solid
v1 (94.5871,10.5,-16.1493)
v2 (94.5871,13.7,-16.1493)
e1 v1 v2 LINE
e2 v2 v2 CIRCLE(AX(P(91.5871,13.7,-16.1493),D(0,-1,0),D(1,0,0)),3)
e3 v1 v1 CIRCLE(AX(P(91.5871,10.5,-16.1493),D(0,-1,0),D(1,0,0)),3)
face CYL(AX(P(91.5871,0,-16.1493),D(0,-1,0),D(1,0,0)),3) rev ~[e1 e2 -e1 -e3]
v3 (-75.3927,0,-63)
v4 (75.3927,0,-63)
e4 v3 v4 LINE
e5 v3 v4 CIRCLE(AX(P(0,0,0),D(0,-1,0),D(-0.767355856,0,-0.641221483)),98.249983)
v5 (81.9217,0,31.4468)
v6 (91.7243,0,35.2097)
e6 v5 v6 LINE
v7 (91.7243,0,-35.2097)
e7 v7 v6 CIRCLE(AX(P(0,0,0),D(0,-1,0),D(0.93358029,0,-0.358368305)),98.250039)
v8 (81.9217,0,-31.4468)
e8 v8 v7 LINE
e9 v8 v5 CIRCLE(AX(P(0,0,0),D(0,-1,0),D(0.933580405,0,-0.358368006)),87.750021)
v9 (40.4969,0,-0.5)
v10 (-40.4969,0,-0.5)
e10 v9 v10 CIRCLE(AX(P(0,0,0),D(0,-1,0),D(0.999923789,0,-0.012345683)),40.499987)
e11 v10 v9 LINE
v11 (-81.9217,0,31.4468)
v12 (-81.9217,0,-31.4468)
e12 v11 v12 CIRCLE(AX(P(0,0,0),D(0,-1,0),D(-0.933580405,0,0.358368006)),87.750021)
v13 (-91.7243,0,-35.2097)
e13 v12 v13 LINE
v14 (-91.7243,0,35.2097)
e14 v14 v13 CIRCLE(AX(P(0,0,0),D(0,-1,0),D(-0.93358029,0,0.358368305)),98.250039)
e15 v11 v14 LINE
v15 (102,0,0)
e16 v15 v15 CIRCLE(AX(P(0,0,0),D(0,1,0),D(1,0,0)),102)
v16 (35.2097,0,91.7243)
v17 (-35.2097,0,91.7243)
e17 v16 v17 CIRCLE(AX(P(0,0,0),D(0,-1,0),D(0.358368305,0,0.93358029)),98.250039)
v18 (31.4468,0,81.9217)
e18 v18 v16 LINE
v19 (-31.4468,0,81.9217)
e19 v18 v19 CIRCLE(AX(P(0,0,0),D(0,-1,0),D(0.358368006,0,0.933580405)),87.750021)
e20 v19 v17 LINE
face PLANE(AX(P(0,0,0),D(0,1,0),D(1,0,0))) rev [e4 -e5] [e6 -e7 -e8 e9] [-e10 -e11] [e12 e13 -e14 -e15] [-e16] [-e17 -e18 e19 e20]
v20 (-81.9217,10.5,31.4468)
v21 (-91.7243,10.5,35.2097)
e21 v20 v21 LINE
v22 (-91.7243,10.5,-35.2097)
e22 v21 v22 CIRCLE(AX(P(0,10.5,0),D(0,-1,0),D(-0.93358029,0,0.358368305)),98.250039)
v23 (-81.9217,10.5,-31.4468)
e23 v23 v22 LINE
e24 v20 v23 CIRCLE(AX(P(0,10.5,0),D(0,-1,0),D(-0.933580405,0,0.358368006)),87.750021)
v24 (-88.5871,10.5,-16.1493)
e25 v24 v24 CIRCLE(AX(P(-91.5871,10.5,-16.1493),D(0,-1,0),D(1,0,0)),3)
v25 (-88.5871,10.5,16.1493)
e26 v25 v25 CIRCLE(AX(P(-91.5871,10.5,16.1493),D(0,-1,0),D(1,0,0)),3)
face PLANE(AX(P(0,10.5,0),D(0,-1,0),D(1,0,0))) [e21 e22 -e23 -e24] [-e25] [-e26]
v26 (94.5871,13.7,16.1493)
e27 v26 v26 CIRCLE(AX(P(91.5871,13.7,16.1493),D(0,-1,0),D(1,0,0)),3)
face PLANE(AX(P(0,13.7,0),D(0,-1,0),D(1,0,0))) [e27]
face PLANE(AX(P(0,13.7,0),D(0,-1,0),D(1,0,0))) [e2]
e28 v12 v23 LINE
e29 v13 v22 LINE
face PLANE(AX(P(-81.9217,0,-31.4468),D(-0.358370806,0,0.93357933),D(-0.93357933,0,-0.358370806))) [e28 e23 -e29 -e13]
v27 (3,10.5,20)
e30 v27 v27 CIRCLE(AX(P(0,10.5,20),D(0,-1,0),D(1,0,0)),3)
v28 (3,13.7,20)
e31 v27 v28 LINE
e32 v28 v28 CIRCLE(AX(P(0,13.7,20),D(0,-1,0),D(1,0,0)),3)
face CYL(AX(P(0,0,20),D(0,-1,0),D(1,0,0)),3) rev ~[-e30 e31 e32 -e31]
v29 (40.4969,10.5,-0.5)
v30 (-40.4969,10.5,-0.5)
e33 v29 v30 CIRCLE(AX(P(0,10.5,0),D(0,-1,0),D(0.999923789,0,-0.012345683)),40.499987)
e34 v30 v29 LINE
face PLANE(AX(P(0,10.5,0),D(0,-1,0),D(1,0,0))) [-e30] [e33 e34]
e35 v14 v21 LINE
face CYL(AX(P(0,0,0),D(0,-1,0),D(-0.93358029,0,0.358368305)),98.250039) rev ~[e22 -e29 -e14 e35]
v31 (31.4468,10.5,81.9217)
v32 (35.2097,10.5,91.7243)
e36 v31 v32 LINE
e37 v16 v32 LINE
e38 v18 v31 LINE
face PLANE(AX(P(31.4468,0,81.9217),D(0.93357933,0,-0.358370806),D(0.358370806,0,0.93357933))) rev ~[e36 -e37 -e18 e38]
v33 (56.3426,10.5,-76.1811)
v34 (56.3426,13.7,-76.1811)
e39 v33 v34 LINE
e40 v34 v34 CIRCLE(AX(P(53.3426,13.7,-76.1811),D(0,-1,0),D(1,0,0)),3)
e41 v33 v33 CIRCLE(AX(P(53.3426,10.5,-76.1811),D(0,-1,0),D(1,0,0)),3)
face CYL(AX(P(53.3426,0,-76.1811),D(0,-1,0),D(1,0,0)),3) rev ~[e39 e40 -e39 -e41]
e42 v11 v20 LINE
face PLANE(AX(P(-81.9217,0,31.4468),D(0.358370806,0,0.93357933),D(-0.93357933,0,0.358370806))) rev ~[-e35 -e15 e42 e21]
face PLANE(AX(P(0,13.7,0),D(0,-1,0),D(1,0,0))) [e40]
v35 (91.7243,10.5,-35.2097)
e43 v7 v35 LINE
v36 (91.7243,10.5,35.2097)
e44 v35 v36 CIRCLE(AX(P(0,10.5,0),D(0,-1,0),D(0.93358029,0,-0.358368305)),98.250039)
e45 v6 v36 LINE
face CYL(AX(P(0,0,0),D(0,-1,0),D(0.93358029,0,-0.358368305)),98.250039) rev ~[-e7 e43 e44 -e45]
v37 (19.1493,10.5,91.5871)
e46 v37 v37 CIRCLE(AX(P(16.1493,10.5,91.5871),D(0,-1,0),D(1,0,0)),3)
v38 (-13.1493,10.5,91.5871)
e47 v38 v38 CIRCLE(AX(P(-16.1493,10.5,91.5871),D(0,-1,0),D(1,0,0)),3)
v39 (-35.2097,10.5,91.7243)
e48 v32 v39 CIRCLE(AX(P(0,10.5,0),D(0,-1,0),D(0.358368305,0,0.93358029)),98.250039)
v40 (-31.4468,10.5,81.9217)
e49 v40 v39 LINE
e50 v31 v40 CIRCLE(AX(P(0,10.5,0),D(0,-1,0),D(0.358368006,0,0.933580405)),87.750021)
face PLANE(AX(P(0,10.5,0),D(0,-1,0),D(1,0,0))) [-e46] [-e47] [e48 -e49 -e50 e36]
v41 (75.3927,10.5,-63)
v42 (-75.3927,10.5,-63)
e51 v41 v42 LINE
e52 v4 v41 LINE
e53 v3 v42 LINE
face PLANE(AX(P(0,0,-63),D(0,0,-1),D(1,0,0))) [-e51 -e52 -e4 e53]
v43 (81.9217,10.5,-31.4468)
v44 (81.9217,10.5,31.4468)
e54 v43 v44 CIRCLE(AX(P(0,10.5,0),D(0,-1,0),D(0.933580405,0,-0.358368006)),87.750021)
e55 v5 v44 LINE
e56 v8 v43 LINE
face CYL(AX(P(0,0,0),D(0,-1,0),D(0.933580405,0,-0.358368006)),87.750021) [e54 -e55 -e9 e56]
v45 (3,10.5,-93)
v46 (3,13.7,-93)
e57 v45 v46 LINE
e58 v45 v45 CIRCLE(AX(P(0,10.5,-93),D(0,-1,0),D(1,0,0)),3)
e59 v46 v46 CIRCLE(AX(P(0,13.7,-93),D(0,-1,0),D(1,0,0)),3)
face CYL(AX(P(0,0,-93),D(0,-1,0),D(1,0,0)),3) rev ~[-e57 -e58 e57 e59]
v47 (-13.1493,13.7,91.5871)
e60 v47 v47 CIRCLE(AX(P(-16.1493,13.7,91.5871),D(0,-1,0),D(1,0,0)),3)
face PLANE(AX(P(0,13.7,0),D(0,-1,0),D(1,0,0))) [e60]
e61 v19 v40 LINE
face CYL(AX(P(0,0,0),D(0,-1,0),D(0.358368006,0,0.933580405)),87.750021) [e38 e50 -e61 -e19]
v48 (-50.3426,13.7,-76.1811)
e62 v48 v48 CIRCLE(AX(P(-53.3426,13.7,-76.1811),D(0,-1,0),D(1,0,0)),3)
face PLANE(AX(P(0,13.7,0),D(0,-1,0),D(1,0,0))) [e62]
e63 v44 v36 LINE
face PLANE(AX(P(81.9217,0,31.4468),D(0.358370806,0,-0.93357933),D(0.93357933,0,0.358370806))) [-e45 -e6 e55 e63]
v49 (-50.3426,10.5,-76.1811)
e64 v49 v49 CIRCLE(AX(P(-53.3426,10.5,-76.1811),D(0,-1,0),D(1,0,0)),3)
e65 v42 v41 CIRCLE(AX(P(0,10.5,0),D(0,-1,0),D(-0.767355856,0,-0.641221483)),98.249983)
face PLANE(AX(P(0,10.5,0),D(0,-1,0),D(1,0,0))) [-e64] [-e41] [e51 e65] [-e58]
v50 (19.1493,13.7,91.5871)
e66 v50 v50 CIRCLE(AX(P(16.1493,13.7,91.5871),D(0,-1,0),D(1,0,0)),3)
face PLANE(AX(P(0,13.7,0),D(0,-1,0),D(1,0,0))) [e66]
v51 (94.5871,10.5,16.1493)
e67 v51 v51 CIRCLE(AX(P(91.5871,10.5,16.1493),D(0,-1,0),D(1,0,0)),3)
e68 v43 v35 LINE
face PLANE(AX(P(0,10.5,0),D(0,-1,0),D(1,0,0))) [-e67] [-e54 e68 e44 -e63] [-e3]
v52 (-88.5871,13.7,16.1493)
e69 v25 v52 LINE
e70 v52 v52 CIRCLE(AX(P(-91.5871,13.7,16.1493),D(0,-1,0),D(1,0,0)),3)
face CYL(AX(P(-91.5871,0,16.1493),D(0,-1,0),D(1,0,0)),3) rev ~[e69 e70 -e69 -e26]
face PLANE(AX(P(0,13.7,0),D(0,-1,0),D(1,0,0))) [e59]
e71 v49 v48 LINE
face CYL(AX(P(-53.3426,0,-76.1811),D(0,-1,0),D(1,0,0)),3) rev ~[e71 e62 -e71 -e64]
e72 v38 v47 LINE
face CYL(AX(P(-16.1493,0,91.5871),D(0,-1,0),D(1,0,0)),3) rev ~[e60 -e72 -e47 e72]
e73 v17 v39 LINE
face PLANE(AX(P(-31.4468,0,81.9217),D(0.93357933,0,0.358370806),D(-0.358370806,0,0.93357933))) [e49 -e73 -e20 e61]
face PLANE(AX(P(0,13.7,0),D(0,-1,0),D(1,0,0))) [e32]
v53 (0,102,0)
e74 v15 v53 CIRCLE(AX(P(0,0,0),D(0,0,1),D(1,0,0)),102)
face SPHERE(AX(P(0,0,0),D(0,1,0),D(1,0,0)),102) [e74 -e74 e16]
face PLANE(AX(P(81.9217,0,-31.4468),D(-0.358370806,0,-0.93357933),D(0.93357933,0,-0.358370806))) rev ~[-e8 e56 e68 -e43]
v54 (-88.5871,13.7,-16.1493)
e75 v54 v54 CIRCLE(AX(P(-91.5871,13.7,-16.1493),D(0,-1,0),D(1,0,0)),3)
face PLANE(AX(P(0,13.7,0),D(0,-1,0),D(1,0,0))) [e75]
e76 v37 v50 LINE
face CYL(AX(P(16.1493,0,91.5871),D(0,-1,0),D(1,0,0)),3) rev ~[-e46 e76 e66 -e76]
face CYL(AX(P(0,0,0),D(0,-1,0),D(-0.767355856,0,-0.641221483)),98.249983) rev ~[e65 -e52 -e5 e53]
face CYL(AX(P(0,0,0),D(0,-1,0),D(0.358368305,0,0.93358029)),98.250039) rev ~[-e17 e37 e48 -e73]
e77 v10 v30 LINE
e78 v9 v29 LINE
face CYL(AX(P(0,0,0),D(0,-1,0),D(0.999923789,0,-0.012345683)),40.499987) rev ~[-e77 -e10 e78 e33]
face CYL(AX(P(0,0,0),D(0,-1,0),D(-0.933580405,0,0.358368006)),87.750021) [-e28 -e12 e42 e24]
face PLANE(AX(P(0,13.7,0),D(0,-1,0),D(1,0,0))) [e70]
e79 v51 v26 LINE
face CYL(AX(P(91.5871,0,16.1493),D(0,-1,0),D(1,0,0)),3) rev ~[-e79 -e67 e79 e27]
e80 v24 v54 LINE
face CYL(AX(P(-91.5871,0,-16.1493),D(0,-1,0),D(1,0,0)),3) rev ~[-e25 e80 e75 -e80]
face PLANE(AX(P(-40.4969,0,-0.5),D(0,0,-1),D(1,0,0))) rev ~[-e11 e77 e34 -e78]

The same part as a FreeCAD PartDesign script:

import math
import FreeCAD as App
import Part
import Sketcher

V = App.Vector
Q = App.Units.Quantity

doc = App.newDocument("Part")
body = doc.addObject("PartDesign::Body", "Body")

sketch1 = body.newObject("Sketcher::SketchObject", "Sketch")
sketch1.AttachmentSupport = (doc.getObject("XY_Plane"), [""])
sketch1.MapMode = "FlatFace"
sketch1.addGeometry(Part.LineSegment(V(0, 102, 0), V(0, 0, 0)), False)
sketch1.addGeometry(Part.LineSegment(V(0, 0, 0), V(102, 0, 0)), False)
sketch1.addGeometry(Part.ArcOfCircle(Part.Circle(V(0, 0, 0), V(0, 0, 1), 102), math.radians(0), math.radians(90)), False)
sketch1.addConstraint(Sketcher.Constraint("Coincident", 0, 2, 1, 1))
sketch1.addConstraint(Sketcher.Constraint("Coincident", 1, 2, 2, 1))
sketch1.addConstraint(Sketcher.Constraint("Coincident", 2, 2, 0, 1))
sketch1.addConstraint(Sketcher.Constraint("Vertical", 0))
sketch1.addConstraint(Sketcher.Constraint("Horizontal", 1))
sketch1.addConstraint(Sketcher.Constraint("Coincident", 2, 3, -1, 1))
sketch1.addConstraint(Sketcher.Constraint("Coincident", 0, 2, -1, 1))
sketch1.addConstraint(Sketcher.Constraint("Radius", 2, 102.0))
revolution = body.newObject("PartDesign::Revolution", "Revolution")
revolution.Profile = sketch1
revolution.ReferenceAxis = (sketch1, ["V_Axis"])
revolution.Angle = 360

sketch2 = body.newObject("Sketcher::SketchObject", "Sketch001")
sketch2.AttachmentSupport = (doc.getObject("XZ_Plane"), [""])
sketch2.MapMode = "FlatFace"
sketch2.addGeometry(Part.ArcOfCircle(Part.Circle(V(0, 0, 0), V(0, 0, 1), 40), math.radians(-1), math.radians(181)), False)
sketch2.addGeometry(Part.LineSegment(V(-40, 0, 0), V(40, 0, 0)), False)
sketch2.addConstraint(Sketcher.Constraint("Coincident", 0, 1, 1, 2))
sketch2.addConstraint(Sketcher.Constraint("Coincident", 1, 1, 0, 2))
sketch2.addConstraint(Sketcher.Constraint("Horizontal", 1))
sketch2.addConstraint(Sketcher.Constraint("Coincident", 0, 3, -1, 1))
sketch2.addConstraint(Sketcher.Constraint("Radius", 0, 40.5))
sketch2.addConstraint(Sketcher.Constraint("DistanceY", 0, 1, -1, 1, 0.5))
pocket1 = body.newObject("PartDesign::Pocket", "Pocket")
pocket1.Profile = sketch2
pocket1.Length = 10.5

sketch3 = body.newObject("Sketcher::SketchObject", "Sketch002")
sketch3.AttachmentSupport = (doc.getObject("XZ_Plane"), [""])
sketch3.MapMode = "FlatFace"
sketch3.addGeometry(Part.LineSegment(V(75, -63, 0), V(-75, -63, 0)), False)
sketch3.addGeometry(Part.ArcOfCircle(Part.Circle(V(0, 0, 0), V(0, 0, 1), 98), math.radians(-140), math.radians(-40)), False)
sketch3.addGeometry(Part.ArcOfCircle(Part.Circle(V(0, 0, 0), V(0, 0, 1), 88), math.radians(69), math.radians(111)), False)
sketch3.addGeometry(Part.LineSegment(V(31, 82, 0), V(35, 92, 0)), False)
sketch3.addGeometry(Part.ArcOfCircle(Part.Circle(V(0, 0, 0), V(0, 0, 1), 98), math.radians(69), math.radians(111)), False)
sketch3.addGeometry(Part.LineSegment(V(-35, 92, 0), V(-31, 82, 0)), False)
sketch3.addGeometry(Part.LineSegment(V(92, 35, 0), V(82, 31, 0)), False)
sketch3.addGeometry(Part.ArcOfCircle(Part.Circle(V(0, 0, 0), V(0, 0, 1), 88), math.radians(-21), math.radians(21)), False)
sketch3.addGeometry(Part.LineSegment(V(82, -31, 0), V(92, -35, 0)), False)
sketch3.addGeometry(Part.ArcOfCircle(Part.Circle(V(0, 0, 0), V(0, 0, 1), 98), math.radians(-21), math.radians(21)), False)
sketch3.addGeometry(Part.ArcOfCircle(Part.Circle(V(0, 0, 0), V(0, 0, 1), 88), math.radians(159), math.radians(201)), False)
sketch3.addGeometry(Part.LineSegment(V(-82, 31, 0), V(-92, 35, 0)), False)
sketch3.addGeometry(Part.ArcOfCircle(Part.Circle(V(0, 0, 0), V(0, 0, 1), 98), math.radians(159), math.radians(201)), False)
sketch3.addGeometry(Part.LineSegment(V(-92, -35, 0), V(-82, -31, 0)), False)
sketch3.addConstraint(Sketcher.Constraint("Coincident", 0, 1, 1, 2))
sketch3.addConstraint(Sketcher.Constraint("Coincident", 1, 1, 0, 2))
sketch3.addConstraint(Sketcher.Constraint("Coincident", 2, 1, 3, 1))
sketch3.addConstraint(Sketcher.Constraint("Coincident", 3, 2, 4, 1))
sketch3.addConstraint(Sketcher.Constraint("Coincident", 4, 2, 5, 1))
sketch3.addConstraint(Sketcher.Constraint("Coincident", 5, 2, 2, 2))
sketch3.addConstraint(Sketcher.Constraint("Coincident", 6, 2, 7, 2))
sketch3.addConstraint(Sketcher.Constraint("Coincident", 7, 1, 8, 1))
sketch3.addConstraint(Sketcher.Constraint("Coincident", 8, 2, 9, 1))
sketch3.addConstraint(Sketcher.Constraint("Coincident", 9, 2, 6, 1))
sketch3.addConstraint(Sketcher.Constraint("Coincident", 10, 1, 11, 1))
sketch3.addConstraint(Sketcher.Constraint("Coincident", 11, 2, 12, 1))
sketch3.addConstraint(Sketcher.Constraint("Coincident", 12, 2, 13, 1))
sketch3.addConstraint(Sketcher.Constraint("Coincident", 13, 2, 10, 2))
sketch3.addConstraint(Sketcher.Constraint("Horizontal", 0))
sketch3.addConstraint(Sketcher.Constraint("Coincident", 1, 3, -1, 1))
sketch3.addConstraint(Sketcher.Constraint("Coincident", 2, 3, -1, 1))
sketch3.addConstraint(Sketcher.Constraint("Coincident", 4, 3, -1, 1))
sketch3.addConstraint(Sketcher.Constraint("Coincident", 7, 3, -1, 1))
sketch3.addConstraint(Sketcher.Constraint("Coincident", 9, 3, -1, 1))
sketch3.addConstraint(Sketcher.Constraint("Coincident", 10, 3, -1, 1))
sketch3.addConstraint(Sketcher.Constraint("Coincident", 12, 3, -1, 1))
sketch3.addConstraint(Sketcher.Constraint("Equal", 1, 4))
sketch3.addConstraint(Sketcher.Constraint("Equal", 2, 7))
sketch3.addConstraint(Sketcher.Constraint("Equal", 4, 9))
sketch3.addConstraint(Sketcher.Constraint("Equal", 7, 10))
sketch3.addConstraint(Sketcher.Constraint("Equal", 9, 12))
sketch3.addConstraint(Sketcher.Constraint("Perpendicular", 5, 6))
sketch3.addConstraint(Sketcher.Constraint("Perpendicular", 3, 8))
sketch3.addConstraint(Sketcher.Constraint("Parallel", 8, 11))
sketch3.addConstraint(Sketcher.Constraint("Parallel", 6, 13))
sketch3.addConstraint(Sketcher.Constraint("Horizontal", 3, 2, 4, 2))
sketch3.addConstraint(Sketcher.Constraint("Horizontal", 2, 1, 5, 2))
sketch3.addConstraint(Sketcher.Constraint("Horizontal", 6, 2, 10, 1))
sketch3.addConstraint(Sketcher.Constraint("Horizontal", 8, 2, 12, 2))
sketch3.addConstraint(Sketcher.Constraint("Vertical", 6, 2, 7, 1))
sketch3.addConstraint(Sketcher.Constraint("Angle", 3, Q("68.9998 deg")))
sketch3.addConstraint(Sketcher.Constraint("Radius", 1, 98.25))
sketch3.addConstraint(Sketcher.Constraint("Radius", 2, 87.75))
sketch3.addConstraint(Sketcher.Constraint("DistanceY", 0, 1, -1, 1, 63.0))
sketch3.addConstraint(Sketcher.Constraint("DistanceX", 2, 1, 6, 2, 50.475))
sketch3.addConstraint(Sketcher.Constraint("DistanceY", 6, 2, 2, 1, 50.475))
pocket2 = body.newObject("PartDesign::Pocket", "Pocket001")
pocket2.Profile = sketch3
pocket2.Length = 10.5

sketch4 = body.newObject("Sketcher::SketchObject", "Sketch003")
sketch4.AttachmentSupport = (doc.getObject("XZ_Plane"), [""])
sketch4.MapMode = "FlatFace"
sketch4.addGeometry(Part.Circle(V(-16.1, 91.6, 0), V(0, 0, 1), 3), False)
sketch4.addGeometry(Part.Circle(V(16.1, 91.6, 0), V(0, 0, 1), 3), False)
sketch4.addGeometry(Part.Circle(V(-91.6, 16.1, 0), V(0, 0, 1), 3), False)
sketch4.addGeometry(Part.Circle(V(-91.6, -16.1, 0), V(0, 0, 1), 3), False)
sketch4.addGeometry(Part.Circle(V(-53.3, -76.2, 0), V(0, 0, 1), 3), False)
sketch4.addGeometry(Part.Circle(V(91.6, 16.1, 0), V(0, 0, 1), 3), False)
sketch4.addGeometry(Part.Circle(V(91.6, -16.1, 0), V(0, 0, 1), 3), False)
sketch4.addGeometry(Part.Circle(V(53.3, -76.2, 0), V(0, 0, 1), 3), False)
sketch4.addGeometry(Part.Circle(V(0, 20, 0), V(0, 0, 1), 3), False)
sketch4.addGeometry(Part.Circle(V(0, -93, 0), V(0, 0, 1), 3), False)
sketch4.addConstraint(Sketcher.Constraint("Equal", 0, 1))
sketch4.addConstraint(Sketcher.Constraint("Equal", 1, 2))
sketch4.addConstraint(Sketcher.Constraint("Equal", 2, 3))
sketch4.addConstraint(Sketcher.Constraint("Equal", 3, 4))
sketch4.addConstraint(Sketcher.Constraint("Equal", 4, 5))
sketch4.addConstraint(Sketcher.Constraint("Equal", 5, 6))
sketch4.addConstraint(Sketcher.Constraint("Equal", 6, 7))
sketch4.addConstraint(Sketcher.Constraint("Equal", 7, 8))
sketch4.addConstraint(Sketcher.Constraint("Equal", 8, 9))
sketch4.addConstraint(Sketcher.Constraint("Symmetric", 3, 3, 5, 3, -1, 1))
sketch4.addConstraint(Sketcher.Constraint("Symmetric", 2, 3, 6, 3, -1, 1))
sketch4.addConstraint(Sketcher.Constraint("Symmetric", 0, 3, 1, 3, -2))
sketch4.addConstraint(Sketcher.Constraint("Symmetric", 2, 3, 5, 3, -2))
sketch4.addConstraint(Sketcher.Constraint("Symmetric", 4, 3, 7, 3, -2))
sketch4.addConstraint(Sketcher.Constraint("PointOnObject", 8, 3, -2))
sketch4.addConstraint(Sketcher.Constraint("PointOnObject", 9, 3, -2))
sketch4.addConstraint(Sketcher.Constraint("Diameter", 0, 6.0))
sketch4.addConstraint(Sketcher.Constraint("DistanceY", -1, 1, 8, 3, 20.0))
sketch4.addConstraint(Sketcher.Constraint("DistanceY", 9, 3, -1, 1, 93.0))
sketch4.addConstraint(Sketcher.Constraint("DistanceY", -1, 1, 0, 3, 91.587))
sketch4.addConstraint(Sketcher.Constraint("DistanceX", 2, 3, -1, 1, 91.587))
sketch4.addConstraint(Sketcher.Constraint("DistanceY", 4, 3, -1, 1, 76.181))
sketch4.addConstraint(Sketcher.Constraint("DistanceX", 4, 3, 1, 3, 69.492))
sketch4.addConstraint(Sketcher.Constraint("DistanceX", 0, 3, -1, 1, 16.1493))
sketch4.addConstraint(Sketcher.Constraint("DistanceY", -1, 1, 2, 3, 16.1493))
pocket3 = body.newObject("PartDesign::Pocket", "Pocket002")
pocket3.Profile = sketch4
pocket3.Length = 13.7

doc.recompute()
